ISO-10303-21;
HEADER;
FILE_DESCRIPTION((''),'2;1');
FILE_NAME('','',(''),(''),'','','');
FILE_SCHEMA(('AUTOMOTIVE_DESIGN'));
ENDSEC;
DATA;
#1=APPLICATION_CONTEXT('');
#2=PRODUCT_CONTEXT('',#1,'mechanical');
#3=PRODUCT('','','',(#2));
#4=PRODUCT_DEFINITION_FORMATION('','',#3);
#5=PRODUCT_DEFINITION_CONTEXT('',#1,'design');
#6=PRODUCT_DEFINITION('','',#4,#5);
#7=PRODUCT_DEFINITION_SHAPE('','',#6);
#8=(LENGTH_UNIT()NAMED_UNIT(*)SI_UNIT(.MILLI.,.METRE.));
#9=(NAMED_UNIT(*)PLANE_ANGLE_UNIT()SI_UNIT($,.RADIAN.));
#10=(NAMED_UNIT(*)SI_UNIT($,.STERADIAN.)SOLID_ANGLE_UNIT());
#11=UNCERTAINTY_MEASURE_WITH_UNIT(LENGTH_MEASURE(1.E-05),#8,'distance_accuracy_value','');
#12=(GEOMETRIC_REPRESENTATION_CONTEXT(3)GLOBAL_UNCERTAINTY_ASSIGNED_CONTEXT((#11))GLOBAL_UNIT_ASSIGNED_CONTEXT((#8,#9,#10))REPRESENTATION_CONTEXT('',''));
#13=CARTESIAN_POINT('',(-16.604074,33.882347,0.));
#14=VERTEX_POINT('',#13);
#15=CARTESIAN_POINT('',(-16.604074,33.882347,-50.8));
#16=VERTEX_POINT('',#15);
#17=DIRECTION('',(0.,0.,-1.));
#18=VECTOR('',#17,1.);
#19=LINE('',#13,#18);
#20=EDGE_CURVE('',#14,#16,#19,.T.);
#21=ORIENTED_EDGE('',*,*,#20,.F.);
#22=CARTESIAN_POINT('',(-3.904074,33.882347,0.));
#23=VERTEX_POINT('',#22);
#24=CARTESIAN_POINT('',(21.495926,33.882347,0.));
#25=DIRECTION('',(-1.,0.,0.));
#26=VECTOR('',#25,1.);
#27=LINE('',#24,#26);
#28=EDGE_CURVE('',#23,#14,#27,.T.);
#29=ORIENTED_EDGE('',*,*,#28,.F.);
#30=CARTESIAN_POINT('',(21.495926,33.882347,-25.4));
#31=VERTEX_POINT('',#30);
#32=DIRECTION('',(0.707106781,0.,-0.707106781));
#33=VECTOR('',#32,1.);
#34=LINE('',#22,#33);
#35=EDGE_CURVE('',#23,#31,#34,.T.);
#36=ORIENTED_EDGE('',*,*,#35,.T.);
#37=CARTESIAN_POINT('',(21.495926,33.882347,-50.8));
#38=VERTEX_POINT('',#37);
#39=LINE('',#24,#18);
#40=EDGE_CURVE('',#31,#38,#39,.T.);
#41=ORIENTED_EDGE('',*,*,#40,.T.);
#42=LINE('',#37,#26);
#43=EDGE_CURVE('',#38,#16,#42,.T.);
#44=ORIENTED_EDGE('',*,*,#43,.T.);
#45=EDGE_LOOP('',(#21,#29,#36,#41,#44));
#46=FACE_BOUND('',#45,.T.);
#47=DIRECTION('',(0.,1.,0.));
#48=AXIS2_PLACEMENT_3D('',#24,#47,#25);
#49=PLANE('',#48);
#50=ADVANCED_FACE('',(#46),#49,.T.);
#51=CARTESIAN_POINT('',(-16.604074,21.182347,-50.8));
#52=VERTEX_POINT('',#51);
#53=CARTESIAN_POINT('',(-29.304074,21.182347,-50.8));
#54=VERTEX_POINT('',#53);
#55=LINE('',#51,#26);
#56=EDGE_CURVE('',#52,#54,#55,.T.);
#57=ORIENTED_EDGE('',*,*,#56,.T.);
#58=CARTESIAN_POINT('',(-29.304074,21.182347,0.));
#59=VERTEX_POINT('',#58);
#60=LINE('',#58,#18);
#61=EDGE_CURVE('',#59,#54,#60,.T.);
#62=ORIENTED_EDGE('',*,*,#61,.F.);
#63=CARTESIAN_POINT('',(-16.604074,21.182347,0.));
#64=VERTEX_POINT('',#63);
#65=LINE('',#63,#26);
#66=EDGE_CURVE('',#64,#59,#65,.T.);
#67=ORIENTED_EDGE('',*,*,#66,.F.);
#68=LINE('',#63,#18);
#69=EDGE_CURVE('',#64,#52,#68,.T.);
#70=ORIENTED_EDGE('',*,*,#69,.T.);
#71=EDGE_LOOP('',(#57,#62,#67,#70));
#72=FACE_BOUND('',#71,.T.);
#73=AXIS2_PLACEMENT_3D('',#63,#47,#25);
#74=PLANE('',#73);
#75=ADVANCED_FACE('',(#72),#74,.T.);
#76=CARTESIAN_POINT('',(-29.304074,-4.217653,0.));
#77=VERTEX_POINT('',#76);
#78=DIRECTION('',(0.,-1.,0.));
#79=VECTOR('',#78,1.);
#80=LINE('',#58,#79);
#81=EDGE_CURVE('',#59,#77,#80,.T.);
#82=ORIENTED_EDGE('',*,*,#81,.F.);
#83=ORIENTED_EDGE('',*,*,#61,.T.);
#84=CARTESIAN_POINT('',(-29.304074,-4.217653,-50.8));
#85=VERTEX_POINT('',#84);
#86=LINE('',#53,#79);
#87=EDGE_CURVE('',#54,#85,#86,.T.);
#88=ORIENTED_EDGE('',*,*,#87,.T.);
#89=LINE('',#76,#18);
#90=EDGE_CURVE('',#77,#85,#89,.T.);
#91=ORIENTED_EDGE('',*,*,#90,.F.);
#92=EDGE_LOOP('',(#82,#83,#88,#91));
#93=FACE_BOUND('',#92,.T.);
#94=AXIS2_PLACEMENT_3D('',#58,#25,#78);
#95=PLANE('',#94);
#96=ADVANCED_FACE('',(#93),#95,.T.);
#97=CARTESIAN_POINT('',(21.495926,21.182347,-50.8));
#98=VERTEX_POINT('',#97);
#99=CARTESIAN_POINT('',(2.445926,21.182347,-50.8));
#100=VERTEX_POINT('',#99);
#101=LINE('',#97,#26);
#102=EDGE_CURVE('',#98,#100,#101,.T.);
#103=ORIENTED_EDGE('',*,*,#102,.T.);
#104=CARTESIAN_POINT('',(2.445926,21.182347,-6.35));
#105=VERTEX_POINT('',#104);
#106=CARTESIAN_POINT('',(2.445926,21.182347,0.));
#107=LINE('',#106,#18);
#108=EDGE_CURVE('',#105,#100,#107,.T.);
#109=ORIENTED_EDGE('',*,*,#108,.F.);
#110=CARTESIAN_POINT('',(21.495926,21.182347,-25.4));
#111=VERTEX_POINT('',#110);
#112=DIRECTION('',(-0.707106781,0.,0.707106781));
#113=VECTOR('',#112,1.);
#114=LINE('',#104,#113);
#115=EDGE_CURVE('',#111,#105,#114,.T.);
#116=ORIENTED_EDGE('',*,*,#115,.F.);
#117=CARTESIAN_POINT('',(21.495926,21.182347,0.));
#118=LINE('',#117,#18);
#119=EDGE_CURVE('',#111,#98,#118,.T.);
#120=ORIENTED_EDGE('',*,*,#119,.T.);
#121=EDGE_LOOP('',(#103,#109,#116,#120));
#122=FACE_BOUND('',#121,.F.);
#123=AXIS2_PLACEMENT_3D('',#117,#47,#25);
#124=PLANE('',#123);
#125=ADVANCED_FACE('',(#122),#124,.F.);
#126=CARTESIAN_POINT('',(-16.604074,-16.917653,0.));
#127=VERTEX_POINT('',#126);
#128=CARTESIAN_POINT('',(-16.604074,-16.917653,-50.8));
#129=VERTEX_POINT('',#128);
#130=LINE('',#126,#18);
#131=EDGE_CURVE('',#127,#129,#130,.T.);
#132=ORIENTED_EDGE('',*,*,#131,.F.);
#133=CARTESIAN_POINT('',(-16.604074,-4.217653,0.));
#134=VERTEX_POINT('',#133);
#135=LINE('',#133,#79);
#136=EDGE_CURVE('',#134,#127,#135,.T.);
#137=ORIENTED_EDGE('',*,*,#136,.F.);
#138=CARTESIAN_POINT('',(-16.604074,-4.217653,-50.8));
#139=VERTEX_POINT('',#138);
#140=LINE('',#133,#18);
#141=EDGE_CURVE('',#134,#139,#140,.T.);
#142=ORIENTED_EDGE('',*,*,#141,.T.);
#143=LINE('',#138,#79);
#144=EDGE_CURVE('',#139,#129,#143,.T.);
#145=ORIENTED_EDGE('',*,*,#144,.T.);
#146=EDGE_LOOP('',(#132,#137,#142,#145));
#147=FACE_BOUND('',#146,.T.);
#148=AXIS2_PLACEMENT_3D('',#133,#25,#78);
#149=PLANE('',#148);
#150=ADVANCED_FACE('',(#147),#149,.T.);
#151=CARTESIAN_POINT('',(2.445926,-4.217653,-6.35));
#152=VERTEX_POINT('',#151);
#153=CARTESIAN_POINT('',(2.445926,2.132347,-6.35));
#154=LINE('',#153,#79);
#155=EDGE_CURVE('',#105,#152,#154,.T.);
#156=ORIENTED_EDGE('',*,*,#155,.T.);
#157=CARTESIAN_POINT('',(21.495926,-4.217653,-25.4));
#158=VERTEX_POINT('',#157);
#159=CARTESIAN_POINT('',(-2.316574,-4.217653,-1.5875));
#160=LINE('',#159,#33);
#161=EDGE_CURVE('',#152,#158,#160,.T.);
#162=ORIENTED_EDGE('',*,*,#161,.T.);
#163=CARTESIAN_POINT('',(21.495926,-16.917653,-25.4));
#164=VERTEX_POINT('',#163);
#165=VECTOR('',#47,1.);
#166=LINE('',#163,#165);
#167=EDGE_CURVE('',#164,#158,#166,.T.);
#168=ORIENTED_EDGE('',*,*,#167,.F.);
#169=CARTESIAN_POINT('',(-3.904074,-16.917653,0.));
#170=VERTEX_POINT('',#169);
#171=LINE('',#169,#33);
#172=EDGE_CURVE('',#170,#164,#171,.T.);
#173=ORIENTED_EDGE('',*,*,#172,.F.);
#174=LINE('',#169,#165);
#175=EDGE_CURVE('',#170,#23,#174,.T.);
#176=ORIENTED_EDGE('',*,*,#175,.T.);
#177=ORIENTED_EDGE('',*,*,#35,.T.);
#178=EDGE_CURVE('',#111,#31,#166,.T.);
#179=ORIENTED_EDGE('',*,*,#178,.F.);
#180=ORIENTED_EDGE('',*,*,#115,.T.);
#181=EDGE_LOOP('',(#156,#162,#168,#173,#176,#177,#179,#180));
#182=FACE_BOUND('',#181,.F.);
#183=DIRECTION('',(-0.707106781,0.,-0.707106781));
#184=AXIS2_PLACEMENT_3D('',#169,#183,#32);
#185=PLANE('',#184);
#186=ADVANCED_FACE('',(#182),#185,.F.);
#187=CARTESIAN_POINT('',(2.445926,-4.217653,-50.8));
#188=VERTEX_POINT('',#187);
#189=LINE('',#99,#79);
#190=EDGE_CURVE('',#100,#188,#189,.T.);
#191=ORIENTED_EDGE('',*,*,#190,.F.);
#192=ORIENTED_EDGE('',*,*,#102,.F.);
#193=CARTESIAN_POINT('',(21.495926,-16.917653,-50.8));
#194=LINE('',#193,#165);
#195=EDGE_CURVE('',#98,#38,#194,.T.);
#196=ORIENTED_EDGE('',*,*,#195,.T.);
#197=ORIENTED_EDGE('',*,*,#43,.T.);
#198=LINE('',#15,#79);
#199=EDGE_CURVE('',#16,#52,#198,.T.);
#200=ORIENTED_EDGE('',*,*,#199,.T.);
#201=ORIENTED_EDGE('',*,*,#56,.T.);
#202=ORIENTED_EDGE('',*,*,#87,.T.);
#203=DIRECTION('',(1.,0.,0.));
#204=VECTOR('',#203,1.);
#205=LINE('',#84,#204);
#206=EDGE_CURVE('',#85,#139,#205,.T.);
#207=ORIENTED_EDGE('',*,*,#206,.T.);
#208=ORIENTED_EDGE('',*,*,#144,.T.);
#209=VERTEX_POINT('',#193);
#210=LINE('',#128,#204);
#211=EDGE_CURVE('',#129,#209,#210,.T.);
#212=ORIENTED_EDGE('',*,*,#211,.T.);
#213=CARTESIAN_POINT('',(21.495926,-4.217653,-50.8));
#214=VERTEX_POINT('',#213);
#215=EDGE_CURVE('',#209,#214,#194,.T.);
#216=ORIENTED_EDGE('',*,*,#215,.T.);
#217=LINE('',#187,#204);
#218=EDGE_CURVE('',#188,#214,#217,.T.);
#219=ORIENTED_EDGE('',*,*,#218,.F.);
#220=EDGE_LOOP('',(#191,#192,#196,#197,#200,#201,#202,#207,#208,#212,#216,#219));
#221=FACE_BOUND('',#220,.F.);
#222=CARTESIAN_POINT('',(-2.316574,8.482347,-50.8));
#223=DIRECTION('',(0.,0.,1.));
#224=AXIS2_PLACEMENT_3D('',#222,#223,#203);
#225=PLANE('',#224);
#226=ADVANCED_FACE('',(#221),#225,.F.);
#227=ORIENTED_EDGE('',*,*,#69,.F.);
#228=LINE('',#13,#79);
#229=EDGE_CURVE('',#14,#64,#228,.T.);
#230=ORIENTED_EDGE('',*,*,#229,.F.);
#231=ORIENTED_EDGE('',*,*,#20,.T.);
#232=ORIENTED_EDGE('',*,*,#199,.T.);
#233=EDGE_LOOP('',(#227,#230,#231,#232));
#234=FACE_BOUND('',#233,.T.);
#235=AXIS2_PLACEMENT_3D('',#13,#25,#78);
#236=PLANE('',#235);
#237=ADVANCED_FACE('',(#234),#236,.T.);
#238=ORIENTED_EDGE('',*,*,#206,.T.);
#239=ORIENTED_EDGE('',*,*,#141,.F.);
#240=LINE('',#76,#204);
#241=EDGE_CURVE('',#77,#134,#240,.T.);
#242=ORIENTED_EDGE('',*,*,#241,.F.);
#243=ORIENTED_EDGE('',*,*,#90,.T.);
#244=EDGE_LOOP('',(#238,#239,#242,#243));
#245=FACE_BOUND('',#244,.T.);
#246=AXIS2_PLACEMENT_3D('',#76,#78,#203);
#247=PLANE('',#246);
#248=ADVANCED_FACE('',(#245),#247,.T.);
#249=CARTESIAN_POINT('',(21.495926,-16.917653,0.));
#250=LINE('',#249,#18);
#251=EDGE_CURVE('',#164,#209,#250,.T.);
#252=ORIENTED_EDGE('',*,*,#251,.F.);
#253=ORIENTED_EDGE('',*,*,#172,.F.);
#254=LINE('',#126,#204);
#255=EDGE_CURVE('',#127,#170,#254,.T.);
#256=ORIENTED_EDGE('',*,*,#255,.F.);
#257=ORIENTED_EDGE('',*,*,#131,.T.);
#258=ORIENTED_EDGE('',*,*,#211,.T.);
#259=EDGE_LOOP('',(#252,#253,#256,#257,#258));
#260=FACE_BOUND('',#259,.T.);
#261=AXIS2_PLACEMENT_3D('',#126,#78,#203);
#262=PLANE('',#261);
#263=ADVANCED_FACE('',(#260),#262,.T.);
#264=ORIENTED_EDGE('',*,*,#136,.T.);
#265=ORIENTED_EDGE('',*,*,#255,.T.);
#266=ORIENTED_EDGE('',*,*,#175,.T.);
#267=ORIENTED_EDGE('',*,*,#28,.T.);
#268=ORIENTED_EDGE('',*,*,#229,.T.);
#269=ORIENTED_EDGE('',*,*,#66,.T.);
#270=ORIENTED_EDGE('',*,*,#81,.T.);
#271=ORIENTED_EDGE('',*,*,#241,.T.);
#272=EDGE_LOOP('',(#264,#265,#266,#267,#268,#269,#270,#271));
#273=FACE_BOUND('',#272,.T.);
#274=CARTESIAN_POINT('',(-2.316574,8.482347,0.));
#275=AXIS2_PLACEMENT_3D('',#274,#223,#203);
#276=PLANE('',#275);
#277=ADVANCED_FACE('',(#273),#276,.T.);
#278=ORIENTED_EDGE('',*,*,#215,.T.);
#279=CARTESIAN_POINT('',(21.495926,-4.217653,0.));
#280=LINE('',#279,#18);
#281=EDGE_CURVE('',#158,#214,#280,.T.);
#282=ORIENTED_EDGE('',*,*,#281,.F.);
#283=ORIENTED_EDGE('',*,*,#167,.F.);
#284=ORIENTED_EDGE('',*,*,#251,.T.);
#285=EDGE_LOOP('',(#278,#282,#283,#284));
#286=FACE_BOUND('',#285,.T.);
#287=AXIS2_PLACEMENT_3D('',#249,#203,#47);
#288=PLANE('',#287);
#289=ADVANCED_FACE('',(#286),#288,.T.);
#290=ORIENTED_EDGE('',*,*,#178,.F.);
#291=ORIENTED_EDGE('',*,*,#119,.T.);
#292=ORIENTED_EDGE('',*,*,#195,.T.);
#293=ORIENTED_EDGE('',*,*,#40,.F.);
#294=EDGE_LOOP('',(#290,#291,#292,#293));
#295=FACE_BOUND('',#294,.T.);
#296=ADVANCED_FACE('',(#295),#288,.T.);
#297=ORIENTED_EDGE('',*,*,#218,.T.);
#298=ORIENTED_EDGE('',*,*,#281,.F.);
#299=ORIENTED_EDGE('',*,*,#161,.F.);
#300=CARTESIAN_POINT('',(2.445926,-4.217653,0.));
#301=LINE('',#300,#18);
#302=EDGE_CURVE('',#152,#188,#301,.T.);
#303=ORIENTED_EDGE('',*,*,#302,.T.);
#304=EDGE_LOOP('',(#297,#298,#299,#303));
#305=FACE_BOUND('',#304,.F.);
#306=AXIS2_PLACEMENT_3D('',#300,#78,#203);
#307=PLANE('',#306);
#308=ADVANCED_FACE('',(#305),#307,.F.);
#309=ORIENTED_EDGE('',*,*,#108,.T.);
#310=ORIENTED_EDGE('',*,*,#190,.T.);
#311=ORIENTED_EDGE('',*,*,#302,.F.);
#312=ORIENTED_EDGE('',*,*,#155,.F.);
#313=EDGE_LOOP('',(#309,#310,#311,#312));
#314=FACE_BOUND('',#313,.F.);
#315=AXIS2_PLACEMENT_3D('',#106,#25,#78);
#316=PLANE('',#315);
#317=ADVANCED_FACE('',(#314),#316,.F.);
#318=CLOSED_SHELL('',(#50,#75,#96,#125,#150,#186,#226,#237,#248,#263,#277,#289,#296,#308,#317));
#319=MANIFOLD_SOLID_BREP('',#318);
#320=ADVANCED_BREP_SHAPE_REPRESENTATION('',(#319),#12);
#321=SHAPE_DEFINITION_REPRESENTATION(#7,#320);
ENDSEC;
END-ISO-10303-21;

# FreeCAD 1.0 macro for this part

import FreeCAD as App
import Part
import Sketcher
from FreeCAD import Vector
Q = App.Units.Quantity

doc = App.newDocument("Part")
params = doc.addObject("Spreadsheet::Sheet", "Params")
for row, (alias, value) in enumerate([
    ("sketch1_height", "1 in"),
    ("sketch1_height2", "2 in"),
    ("sketch1_width", "1.5 in"),
    ("pad1_length", "2 in"),
    ("sketch2_height", "1 in"),
    ("sketch2_width", "0.75 in"),
    ("pocket1_length", "2 in"),
    ("sketch3_width", "1 in"),
    ("pocket2_length", "2 in"),
], start=1):
    params.set(f"A{row}", alias)
    params.set(f"B{row}", "=" + value)
    params.setAlias(f"B{row}", alias)

body = doc.addObject("PartDesign::Body", "Body")

sketch1 = body.newObject("Sketcher::SketchObject", "Sketch")
sketch1.AttachmentSupport = (doc.getObject("XY_Plane"), [""])
sketch1.MapMode = "FlatFace"
sketch1.addGeometry(Part.LineSegment(Vector(-16.604074, 21.182347, 0), Vector(-29.304074, 21.182347, 0)), False)
sketch1.addGeometry(Part.LineSegment(Vector(-29.304074, 21.182347, 0), Vector(-29.304074, -4.217653, 0)), False)
sketch1.addGeometry(Part.LineSegment(Vector(-29.304074, -4.217653, 0), Vector(-16.604074, -4.217653, 0)), False)
sketch1.addGeometry(Part.LineSegment(Vector(-16.604074, -4.217653, 0), Vector(-16.604074, -16.917653, 0)), False)
sketch1.addGeometry(Part.LineSegment(Vector(-16.604074, -16.917653, 0), Vector(21.495926, -16.917653, 0)), False)
sketch1.addGeometry(Part.LineSegment(Vector(21.495926, -16.917653, 0), Vector(21.495926, 33.882347, 0)), False)
sketch1.addGeometry(Part.LineSegment(Vector(21.495926, 33.882347, 0), Vector(-16.604074, 33.882347, 0)), False)
sketch1.addGeometry(Part.LineSegment(Vector(-16.604074, 33.882347, 0), Vector(-16.604074, 21.182347, 0)), False)
sketch1.addConstraint(Sketcher.Constraint("Coincident", 0, 2, 1, 1))
sketch1.addConstraint(Sketcher.Constraint("Coincident", 1, 2, 2, 1))
sketch1.addConstraint(Sketcher.Constraint("Coincident", 2, 2, 3, 1))
sketch1.addConstraint(Sketcher.Constraint("Coincident", 3, 2, 4, 1))
sketch1.addConstraint(Sketcher.Constraint("Coincident", 4, 2, 5, 1))
sketch1.addConstraint(Sketcher.Constraint("Coincident", 5, 2, 6, 1))
sketch1.addConstraint(Sketcher.Constraint("Coincident", 6, 2, 7, 1))
sketch1.addConstraint(Sketcher.Constraint("Coincident", 7, 2, 0, 1))
sketch1.addConstraint(Sketcher.Constraint("Horizontal", 0))
sketch1.addConstraint(Sketcher.Constraint("Vertical", 1))
sketch1.addConstraint(Sketcher.Constraint("Horizontal", 2))
sketch1.addConstraint(Sketcher.Constraint("Vertical", 3))
sketch1.addConstraint(Sketcher.Constraint("Horizontal", 4))
sketch1.addConstraint(Sketcher.Constraint("Vertical", 5))
sketch1.addConstraint(Sketcher.Constraint("Horizontal", 6))
sketch1.addConstraint(Sketcher.Constraint("Vertical", 7))
sketch1.addConstraint(Sketcher.Constraint("Vertical", 3, 2, 6, 2))
sketch1.addConstraint(Sketcher.Constraint("Equal", 2, 3))
sketch1.addConstraint(Sketcher.Constraint("Equal", 3, 7))
sketch1.addConstraint(Sketcher.Constraint("DistanceY", 1, 2, 1, 1, Q("1 in")))
sketch1.addConstraint(Sketcher.Constraint("DistanceY", 5, 1, 5, 2, Q("2 in")))
sketch1.addConstraint(Sketcher.Constraint("DistanceX", 4, 1, 4, 2, Q("1.5 in")))
sketch1.addConstraint(Sketcher.Constraint("DistanceX", 0, 2, -1, 1, Q("29.304074 mm")))
sketch1.addConstraint(Sketcher.Constraint("DistanceY", -1, 1, 0, 2, Q("21.182347 mm")))
sketch1.setExpression("Constraints[19]", "Params.sketch1_height")
sketch1.setExpression("Constraints[20]", "Params.sketch1_height2")
sketch1.setExpression("Constraints[21]", "Params.sketch1_width")
pad1 = body.newObject("PartDesign::Pad", "Pad")
pad1.Profile = sketch1
pad1.setExpression("Length", "Params.pad1_length")
pad1.Reversed = True

sketch2 = body.newObject("Sketcher::SketchObject", "Sketch001")
sketch2.AttachmentSupport = (doc.getObject("XY_Plane"), [""])
sketch2.MapMode = "FlatFace"
sketch2.addGeometry(Part.LineSegment(Vector(21.495926, -4.217653, 0), Vector(21.495926, 21.182347, 0)), False)
sketch2.addGeometry(Part.LineSegment(Vector(21.495926, 21.182347, 0), Vector(2.445926, 21.182347, 0)), False)
sketch2.addGeometry(Part.LineSegment(Vector(2.445926, 21.182347, 0), Vector(2.445926, -4.217653, 0)), False)
sketch2.addGeometry(Part.LineSegment(Vector(2.445926, -4.217653, 0), Vector(21.495926, -4.217653, 0)), False)
sketch2.addConstraint(Sketcher.Constraint("Coincident", 0, 2, 1, 1))
sketch2.addConstraint(Sketcher.Constraint("Coincident", 1, 2, 2, 1))
sketch2.addConstraint(Sketcher.Constraint("Coincident", 2, 2, 3, 1))
sketch2.addConstraint(Sketcher.Constraint("Coincident", 3, 2, 0, 1))
sketch2.addConstraint(Sketcher.Constraint("Vertical", 0))
sketch2.addConstraint(Sketcher.Constraint("Horizontal", 1))
sketch2.addConstraint(Sketcher.Constraint("Vertical", 2))
sketch2.addConstraint(Sketcher.Constraint("Horizontal", 3))
sketch2.addConstraint(Sketcher.Constraint("DistanceY", 0, 1, 0, 2, Q("1 in")))
sketch2.addConstraint(Sketcher.Constraint("DistanceX", 1, 2, 1, 1, Q("0.75 in")))
sketch2.addConstraint(Sketcher.Constraint("DistanceX", -1, 1, 0, 2, Q("21.495926 mm")))
sketch2.addConstraint(Sketcher.Constraint("DistanceY", -1, 1, 0, 2, Q("21.182347 mm")))
sketch2.setExpression("Constraints[8]", "Params.sketch2_height")
sketch2.setExpression("Constraints[9]", "Params.sketch2_width")
pocket1 = body.newObject("PartDesign::Pocket", "Pocket")
pocket1.Profile = sketch2
pocket1.setExpression("Length", "Params.pocket1_length")

sketch3 = body.newObject("Sketcher::SketchObject", "Sketch002")
sketch3.AttachmentSupport = (doc.getObject("XZ_Plane"), [""])
sketch3.MapMode = "FlatFace"
sketch3.AttachmentOffset = App.Placement(Vector(0, 0, 16.917653), App.Rotation())
sketch3.addGeometry(Part.LineSegment(Vector(-3.904074, 0, 0), Vector(21.495926, -25.4, 0)), False)
sketch3.addGeometry(Part.LineSegment(Vector(21.495926, -25.4, 0), Vector(21.495926, 0, 0)), False)
sketch3.addGeometry(Part.LineSegment(Vector(21.495926, 0, 0), Vector(-3.904074, 0, 0)), False)
sketch3.addConstraint(Sketcher.Constraint("Coincident", 0, 2, 1, 1))
sketch3.addConstraint(Sketcher.Constraint("Coincident", 1, 2, 2, 1))
sketch3.addConstraint(Sketcher.Constraint("Coincident", 2, 2, 0, 1))
sketch3.addConstraint(Sketcher.Constraint("Vertical", 1))
sketch3.addConstraint(Sketcher.Constraint("Horizontal", 2))
sketch3.addConstraint(Sketcher.Constraint("PointOnObject", 1, 2, -1))
sketch3.addConstraint(Sketcher.Constraint("Equal", 2, 1))
sketch3.addConstraint(Sketcher.Constraint("DistanceX", 2, 2, 2, 1, Q("1 in")))
sketch3.addConstraint(Sketcher.Constraint("DistanceX", -1, 1, 0, 2, Q("21.495926 mm")))
sketch3.setExpression("Constraints[7]", "Params.sketch3_width")
pocket2 = body.newObject("PartDesign::Pocket", "Pocket001")
pocket2.Profile = sketch3
pocket2.setExpression("Length", "Params.pocket2_length")

doc.recompute()
